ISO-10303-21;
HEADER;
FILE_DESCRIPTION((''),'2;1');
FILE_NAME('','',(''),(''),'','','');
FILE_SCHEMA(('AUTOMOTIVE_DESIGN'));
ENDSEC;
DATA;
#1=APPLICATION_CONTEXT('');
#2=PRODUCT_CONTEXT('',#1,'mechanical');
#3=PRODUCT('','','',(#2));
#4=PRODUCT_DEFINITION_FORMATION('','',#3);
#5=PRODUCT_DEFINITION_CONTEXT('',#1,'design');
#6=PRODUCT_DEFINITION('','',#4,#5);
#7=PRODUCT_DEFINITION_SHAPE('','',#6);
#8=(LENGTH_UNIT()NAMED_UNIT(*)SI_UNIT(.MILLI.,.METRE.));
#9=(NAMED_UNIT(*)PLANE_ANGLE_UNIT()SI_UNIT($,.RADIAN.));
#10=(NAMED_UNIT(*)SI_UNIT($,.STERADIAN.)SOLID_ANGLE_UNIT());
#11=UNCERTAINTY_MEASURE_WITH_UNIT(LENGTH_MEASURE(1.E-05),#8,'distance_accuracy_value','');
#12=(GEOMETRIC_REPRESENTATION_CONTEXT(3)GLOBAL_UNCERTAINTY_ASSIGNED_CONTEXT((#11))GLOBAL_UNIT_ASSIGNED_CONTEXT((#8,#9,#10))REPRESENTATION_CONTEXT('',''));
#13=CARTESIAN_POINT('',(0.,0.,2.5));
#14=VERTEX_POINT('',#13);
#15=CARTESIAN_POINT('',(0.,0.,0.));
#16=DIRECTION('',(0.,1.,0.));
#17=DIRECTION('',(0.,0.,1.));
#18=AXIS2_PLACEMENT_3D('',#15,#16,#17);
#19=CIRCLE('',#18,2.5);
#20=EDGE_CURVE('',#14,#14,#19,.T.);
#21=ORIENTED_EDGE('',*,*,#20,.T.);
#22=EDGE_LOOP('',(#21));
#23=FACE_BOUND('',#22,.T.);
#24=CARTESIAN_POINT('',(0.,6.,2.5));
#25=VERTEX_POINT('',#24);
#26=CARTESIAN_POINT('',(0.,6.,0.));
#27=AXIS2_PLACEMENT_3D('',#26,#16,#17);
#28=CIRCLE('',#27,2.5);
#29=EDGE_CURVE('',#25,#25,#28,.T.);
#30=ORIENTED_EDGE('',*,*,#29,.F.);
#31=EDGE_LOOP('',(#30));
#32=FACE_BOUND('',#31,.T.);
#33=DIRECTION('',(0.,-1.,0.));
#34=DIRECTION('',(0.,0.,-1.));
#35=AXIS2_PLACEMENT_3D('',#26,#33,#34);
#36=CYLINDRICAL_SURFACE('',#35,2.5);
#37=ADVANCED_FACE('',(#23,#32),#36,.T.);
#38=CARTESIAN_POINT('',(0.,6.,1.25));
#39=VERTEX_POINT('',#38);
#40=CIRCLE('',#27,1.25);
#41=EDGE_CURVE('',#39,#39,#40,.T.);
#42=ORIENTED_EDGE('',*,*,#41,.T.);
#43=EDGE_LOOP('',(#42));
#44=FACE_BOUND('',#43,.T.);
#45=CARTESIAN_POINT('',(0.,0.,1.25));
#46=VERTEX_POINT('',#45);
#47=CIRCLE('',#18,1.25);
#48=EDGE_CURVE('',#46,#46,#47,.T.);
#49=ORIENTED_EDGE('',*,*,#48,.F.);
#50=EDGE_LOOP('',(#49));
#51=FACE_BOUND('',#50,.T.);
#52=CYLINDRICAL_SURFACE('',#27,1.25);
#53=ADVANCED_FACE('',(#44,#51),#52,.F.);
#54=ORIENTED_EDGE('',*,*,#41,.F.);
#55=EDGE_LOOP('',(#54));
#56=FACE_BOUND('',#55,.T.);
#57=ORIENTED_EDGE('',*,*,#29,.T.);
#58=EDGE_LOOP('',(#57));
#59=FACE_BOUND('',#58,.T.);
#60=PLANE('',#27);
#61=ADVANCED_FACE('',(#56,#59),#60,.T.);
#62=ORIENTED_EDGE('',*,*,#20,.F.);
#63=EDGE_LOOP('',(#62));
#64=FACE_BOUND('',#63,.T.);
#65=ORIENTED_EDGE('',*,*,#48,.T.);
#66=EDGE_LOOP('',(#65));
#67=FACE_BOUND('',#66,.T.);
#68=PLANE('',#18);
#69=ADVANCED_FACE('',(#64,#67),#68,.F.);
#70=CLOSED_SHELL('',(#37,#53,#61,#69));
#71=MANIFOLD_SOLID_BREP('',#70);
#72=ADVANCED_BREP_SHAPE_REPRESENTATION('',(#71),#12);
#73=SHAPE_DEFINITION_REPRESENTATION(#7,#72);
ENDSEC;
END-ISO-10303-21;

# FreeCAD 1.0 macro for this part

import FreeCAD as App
import Part
import Sketcher

V = App.Vector

doc = App.newDocument("Part")
body = doc.addObject("PartDesign::Body", "Body")

sketch1 = doc.addObject("Sketcher::SketchObject", "Sketch")
body.addObject(sketch1)
sketch1.AttachmentSupport = (doc.XZ_Plane, [""])
sketch1.MapMode = "FlatFace"
sketch1.addGeometry(Part.Circle(V(0, 0, 0), V(0, 0, 1), 2.5), False)
sketch1.addConstraint([
    Sketcher.Constraint("Coincident", 0, 3, -1, 1),
    Sketcher.Constraint("Diameter", 0, 5.0),
])
pad1 = doc.addObject("PartDesign::Pad", "Pad")
body.addObject(pad1)
pad1.Profile = sketch1
pad1.Length = 6
pad1.Reversed = True

sketch2 = doc.addObject("Sketcher::SketchObject", "Sketch001")
body.addObject(sketch2)
sketch2.AttachmentSupport = (doc.XZ_Plane, [""])
sketch2.MapMode = "FlatFace"
sketch2.AttachmentOffset = App.Placement(V(0, 0, -6), App.Rotation())
sketch2.addGeometry(Part.Circle(V(0, 0, 0), V(0, 0, 1), 1.2), False)
sketch2.addConstraint([
    Sketcher.Constraint("Coincident", 0, 3, -1, 1),
    Sketcher.Constraint("Diameter", 0, 2.5),
])
doc.recompute()
hole = doc.addObject("PartDesign::Hole", "Hole")
body.addObject(hole)
hole.Profile = sketch2
hole.ThreadType = "None"
hole.Diameter = 2.5
hole.DepthType = "ThroughAll"
hole.Reversed = True

doc.recompute()
